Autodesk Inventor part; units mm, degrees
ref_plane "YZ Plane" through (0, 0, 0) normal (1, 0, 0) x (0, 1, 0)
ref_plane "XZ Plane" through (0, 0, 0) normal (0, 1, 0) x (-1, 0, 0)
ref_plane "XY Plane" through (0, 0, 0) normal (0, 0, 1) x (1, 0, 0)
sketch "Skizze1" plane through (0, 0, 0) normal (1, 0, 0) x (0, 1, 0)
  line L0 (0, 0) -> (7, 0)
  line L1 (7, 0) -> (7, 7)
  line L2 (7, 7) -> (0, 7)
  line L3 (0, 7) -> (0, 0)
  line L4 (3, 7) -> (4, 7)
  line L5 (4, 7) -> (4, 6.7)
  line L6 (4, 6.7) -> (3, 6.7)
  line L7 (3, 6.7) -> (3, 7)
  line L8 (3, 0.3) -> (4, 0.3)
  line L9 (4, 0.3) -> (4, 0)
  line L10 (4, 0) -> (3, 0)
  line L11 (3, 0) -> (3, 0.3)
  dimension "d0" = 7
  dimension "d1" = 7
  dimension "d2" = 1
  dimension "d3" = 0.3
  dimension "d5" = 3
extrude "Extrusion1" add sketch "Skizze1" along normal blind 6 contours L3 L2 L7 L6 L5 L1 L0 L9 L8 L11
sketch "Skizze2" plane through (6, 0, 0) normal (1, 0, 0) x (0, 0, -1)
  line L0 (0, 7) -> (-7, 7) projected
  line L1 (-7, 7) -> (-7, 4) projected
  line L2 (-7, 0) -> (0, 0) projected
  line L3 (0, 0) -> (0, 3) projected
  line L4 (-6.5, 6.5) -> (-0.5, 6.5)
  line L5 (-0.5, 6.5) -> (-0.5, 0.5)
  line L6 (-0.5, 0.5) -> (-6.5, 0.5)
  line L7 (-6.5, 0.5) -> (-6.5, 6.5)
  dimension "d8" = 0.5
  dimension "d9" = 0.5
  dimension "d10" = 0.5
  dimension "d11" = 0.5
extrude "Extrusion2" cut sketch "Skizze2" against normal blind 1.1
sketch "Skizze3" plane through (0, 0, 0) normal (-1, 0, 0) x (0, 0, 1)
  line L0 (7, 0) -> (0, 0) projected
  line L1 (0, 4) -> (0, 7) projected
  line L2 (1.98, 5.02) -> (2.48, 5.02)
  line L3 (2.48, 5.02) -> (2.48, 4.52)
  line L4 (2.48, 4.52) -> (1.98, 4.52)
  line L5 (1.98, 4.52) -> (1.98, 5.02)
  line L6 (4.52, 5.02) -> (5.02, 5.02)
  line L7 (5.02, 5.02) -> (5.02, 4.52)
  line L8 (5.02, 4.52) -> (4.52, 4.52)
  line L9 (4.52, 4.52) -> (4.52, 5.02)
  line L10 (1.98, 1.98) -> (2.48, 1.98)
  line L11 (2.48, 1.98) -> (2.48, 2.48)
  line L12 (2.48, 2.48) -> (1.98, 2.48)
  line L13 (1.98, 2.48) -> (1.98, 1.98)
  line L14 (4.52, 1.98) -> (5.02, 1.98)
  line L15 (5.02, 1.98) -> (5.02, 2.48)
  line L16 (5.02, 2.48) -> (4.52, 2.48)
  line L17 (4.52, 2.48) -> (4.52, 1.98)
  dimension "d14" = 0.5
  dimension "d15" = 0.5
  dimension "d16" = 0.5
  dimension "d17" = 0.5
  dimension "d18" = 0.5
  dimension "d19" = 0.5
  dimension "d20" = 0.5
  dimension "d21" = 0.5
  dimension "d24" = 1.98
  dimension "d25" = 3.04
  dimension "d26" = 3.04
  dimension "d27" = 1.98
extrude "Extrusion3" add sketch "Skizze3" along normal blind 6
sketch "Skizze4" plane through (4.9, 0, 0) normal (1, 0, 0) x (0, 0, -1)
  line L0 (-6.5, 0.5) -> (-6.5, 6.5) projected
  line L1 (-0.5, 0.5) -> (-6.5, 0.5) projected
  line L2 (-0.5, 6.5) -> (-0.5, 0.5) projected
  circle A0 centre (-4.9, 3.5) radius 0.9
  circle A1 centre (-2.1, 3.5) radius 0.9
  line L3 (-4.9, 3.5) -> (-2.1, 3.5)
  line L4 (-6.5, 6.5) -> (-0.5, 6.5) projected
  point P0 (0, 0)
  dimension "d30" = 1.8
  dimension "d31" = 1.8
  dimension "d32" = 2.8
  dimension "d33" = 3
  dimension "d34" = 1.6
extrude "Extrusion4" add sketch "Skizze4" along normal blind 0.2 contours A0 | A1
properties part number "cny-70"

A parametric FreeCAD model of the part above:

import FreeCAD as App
import Part
import Sketcher

V = App.Vector
Q = App.Units.Quantity


def add_polygon(sketch, points):
    """Adds a closed chain of lines whose ends are joined by coincident constraints."""
    first, n = sketch.GeometryCount, len(points)
    for a, b in zip(points, points[1:] + points[:1]):
        sketch.addGeometry(Part.LineSegment(App.Vector(*a, 0), App.Vector(*b, 0)), False)
    for i in range(n):
        sketch.addConstraint(Sketcher.Constraint("Coincident", first + i, 2, first + (i + 1) % n, 1))

doc = App.newDocument("Part")
body = doc.addObject("PartDesign::Body", "Body")

# Sketch on YZ plane
sketch1 = body.newObject("Sketcher::SketchObject", "Sketch")
sketch1.AttachmentSupport = (doc.getObject("YZ_Plane"), [""])
sketch1.MapMode = "FlatFace"
add_polygon(sketch1, [(0, 7), (0, 0), (3, 0), (3, 0.3), (4, 0.3), (4, 0), (7, 0), (7, 7), (4, 7), (4, 6.7), (3, 6.7), (3, 7)])  # lines 0-11
sketch1.addConstraint(Sketcher.Constraint("Vertical", 0))
sketch1.addConstraint(Sketcher.Constraint("Horizontal", 1))
sketch1.addConstraint(Sketcher.Constraint("Vertical", 2))
sketch1.addConstraint(Sketcher.Constraint("Horizontal", 3))
sketch1.addConstraint(Sketcher.Constraint("Vertical", 4))
sketch1.addConstraint(Sketcher.Constraint("Horizontal", 5))
sketch1.addConstraint(Sketcher.Constraint("Vertical", 6))
sketch1.addConstraint(Sketcher.Constraint("Horizontal", 7))
sketch1.addConstraint(Sketcher.Constraint("Vertical", 8))
sketch1.addConstraint(Sketcher.Constraint("Horizontal", 9))
sketch1.addConstraint(Sketcher.Constraint("Vertical", 10))
sketch1.addConstraint(Sketcher.Constraint("Horizontal", 11))
sketch1.addConstraint(Sketcher.Constraint("Coincident", 0, 2, -1, 1))
sketch1.addConstraint(Sketcher.Constraint("PointOnObject", 4, 2, -1))
sketch1.addConstraint(Sketcher.Constraint("Horizontal", 7, 2, 10, 2))
sketch1.addConstraint(Sketcher.Constraint("Vertical", 4, 2, 7, 2))
sketch1.addConstraint(Sketcher.Constraint("Vertical", 2, 2, 9, 2))
sketch1.addConstraint(Sketcher.Constraint("Equal", 1, 5))
sketch1.addConstraint(Sketcher.Constraint("Equal", 4, 8))
sketch1.addConstraint(Sketcher.Constraint("DistanceX", 1, 1, 1, 2, Q("3 mm")))
sketch1.addConstraint(Sketcher.Constraint("DistanceX", 3, 1, 3, 2, Q("1 mm")))
sketch1.addConstraint(Sketcher.Constraint("DistanceY", 0, 2, 0, 1, Q("7 mm")))
sketch1.addConstraint(Sketcher.Constraint("DistanceY", 2, 1, 2, 2, Q("0.3 mm")))
pad1 = body.newObject("PartDesign::Pad", "Pad")
pad1.Profile = sketch1
pad1.Length = 6

# Sketch on YZ plane
sketch2 = body.newObject("Sketcher::SketchObject", "Sketch001")
sketch2.AttachmentSupport = (doc.getObject("YZ_Plane"), [""])
sketch2.MapMode = "FlatFace"
sketch2.AttachmentOffset = App.Placement(V(0, 0, 6), App.Rotation())
add_polygon(sketch2, [(6, 0), (6, 6), (0, 6), (0, 0)])  # lines 0-3
sketch2.addConstraint(Sketcher.Constraint("Vertical", 0))
sketch2.addConstraint(Sketcher.Constraint("Horizontal", 1))
sketch2.addConstraint(Sketcher.Constraint("Vertical", 2))
sketch2.addConstraint(Sketcher.Constraint("Horizontal", 3))
sketch2.addConstraint(Sketcher.Constraint("Equal", 3, 0))
sketch2.addConstraint(Sketcher.Constraint("DistanceX", -1, 1, 1, 2, Q("0.5 mm")))
sketch2.addConstraint(Sketcher.Constraint("DistanceY", -1, 1, 2, 2, Q("0.5 mm")))
sketch2.addConstraint(Sketcher.Constraint("DistanceX", 1, 2, 1, 1, Q("6 mm")))
pocket1 = body.newObject("PartDesign::Pocket", "Pocket")
pocket1.Profile = sketch2
pocket1.Length = 1.1

# Sketch on YZ plane
sketch3 = body.newObject("Sketcher::SketchObject", "Sketch002")
sketch3.AttachmentSupport = (doc.getObject("YZ_Plane"), [""])
sketch3.MapMode = "FlatFace"
add_polygon(sketch3, [(5, 2.5), (5, 2), (4.5, 2), (4.5, 2.5)])  # lines 0-3
add_polygon(sketch3, [(5, 5), (5, 4.5), (4.5, 4.5), (4.5, 5)])  # lines 4-7
add_polygon(sketch3, [(2.5, 2), (2, 2), (2, 2.5), (2.5, 2.5)])  # lines 8-11
add_polygon(sketch3, [(2.5, 4.5), (2, 4.5), (2, 5), (2.5, 5)])  # lines 12-15
sketch3.addConstraint(Sketcher.Constraint("Vertical", 0))
sketch3.addConstraint(Sketcher.Constraint("Horizontal", 1))
sketch3.addConstraint(Sketcher.Constraint("Vertical", 2))
sketch3.addConstraint(Sketcher.Constraint("Horizontal", 3))
sketch3.addConstraint(Sketcher.Constraint("Vertical", 4))
sketch3.addConstraint(Sketcher.Constraint("Horizontal", 5))
sketch3.addConstraint(Sketcher.Constraint("Vertical", 6))
sketch3.addConstraint(Sketcher.Constraint("Horizontal", 7))
sketch3.addConstraint(Sketcher.Constraint("Horizontal", 8))
sketch3.addConstraint(Sketcher.Constraint("Vertical", 9))
sketch3.addConstraint(Sketcher.Constraint("Horizontal", 10))
sketch3.addConstraint(Sketcher.Constraint("Vertical", 11))
sketch3.addConstraint(Sketcher.Constraint("Horizontal", 12))
sketch3.addConstraint(Sketcher.Constraint("Vertical", 13))
sketch3.addConstraint(Sketcher.Constraint("Horizontal", 14))
sketch3.addConstraint(Sketcher.Constraint("Vertical", 15))
sketch3.addConstraint(Sketcher.Constraint("Horizontal", 1, 2, 8, 2))
sketch3.addConstraint(Sketcher.Constraint("Horizontal", 3, 2, 9, 2))
sketch3.addConstraint(Sketcher.Constraint("Horizontal", 5, 2, 12, 2))
sketch3.addConstraint(Sketcher.Constraint("Horizontal", 7, 2, 13, 2))
sketch3.addConstraint(Sketcher.Constraint("Vertical", 3, 2, 4, 2))
sketch3.addConstraint(Sketcher.Constraint("Vertical", 2, 2, 5, 2))
sketch3.addConstraint(Sketcher.Constraint("Vertical", 9, 2, 12, 2))
sketch3.addConstraint(Sketcher.Constraint("Vertical", 11, 2, 14, 2))
sketch3.addConstraint(Sketcher.Constraint("Equal", 7, 8))
sketch3.addConstraint(Sketcher.Constraint("Equal", 14, 0))
sketch3.addConstraint(Sketcher.Constraint("Equal", 2, 4))
sketch3.addConstraint(Sketcher.Constraint("DistanceX", 1, 2, 1, 1, Q("0.5 mm")))
sketch3.addConstraint(Sketcher.Constraint("DistanceY", -1, 1, 0, 2, Q("1.98 mm")))
sketch3.addConstraint(Sketcher.Constraint("DistanceX", -1, 1, 8, 2, Q("1.98 mm")))
sketch3.addConstraint(Sketcher.Constraint("DistanceY", 1, 2, 6, 2, Q("3.04 mm")))
sketch3.addConstraint(Sketcher.Constraint("DistanceX", 8, 2, 0, 2, Q("3.04 mm")))
pad2 = body.newObject("PartDesign::Pad", "Pad001")
pad2.Profile = sketch3
pad2.Length = 6
pad2.Reversed = True

# Sketch on YZ plane
sketch4 = body.newObject("Sketcher::SketchObject", "Sketch003")
sketch4.AttachmentSupport = (doc.getObject("YZ_Plane"), [""])
sketch4.MapMode = "FlatFace"
sketch4.AttachmentOffset = App.Placement(V(0, 0, 4.9), App.Rotation())
sketch4.addGeometry(Part.Circle(V(3.5, 4.9, 0), V(0, 0, 1), 0.9), False)
sketch4.addGeometry(Part.Circle(V(3.5, 2.1, 0), V(0, 0, 1), 0.9), False)
sketch4.addConstraint(Sketcher.Constraint("Equal", 0, 1))
sketch4.addConstraint(Sketcher.Constraint("Vertical", 0, 3, 1, 3))
sketch4.addConstraint(Sketcher.Constraint("Diameter", 0, Q("1.8 mm")))
sketch4.addConstraint(Sketcher.Constraint("DistanceY", 1, 3, 0, 3, Q("2.8 mm")))
sketch4.addConstraint(Sketcher.Constraint("DistanceX", -1, 1, 0, 3, Q("3.5 mm")))
sketch4.addConstraint(Sketcher.Constraint("DistanceY", -1, 1, 0, 3, Q("4.9 mm")))
pad3 = body.newObject("PartDesign::Pad", "Pad002")
pad3.Profile = sketch4
pad3.Length = 0.2

doc.recompute()
